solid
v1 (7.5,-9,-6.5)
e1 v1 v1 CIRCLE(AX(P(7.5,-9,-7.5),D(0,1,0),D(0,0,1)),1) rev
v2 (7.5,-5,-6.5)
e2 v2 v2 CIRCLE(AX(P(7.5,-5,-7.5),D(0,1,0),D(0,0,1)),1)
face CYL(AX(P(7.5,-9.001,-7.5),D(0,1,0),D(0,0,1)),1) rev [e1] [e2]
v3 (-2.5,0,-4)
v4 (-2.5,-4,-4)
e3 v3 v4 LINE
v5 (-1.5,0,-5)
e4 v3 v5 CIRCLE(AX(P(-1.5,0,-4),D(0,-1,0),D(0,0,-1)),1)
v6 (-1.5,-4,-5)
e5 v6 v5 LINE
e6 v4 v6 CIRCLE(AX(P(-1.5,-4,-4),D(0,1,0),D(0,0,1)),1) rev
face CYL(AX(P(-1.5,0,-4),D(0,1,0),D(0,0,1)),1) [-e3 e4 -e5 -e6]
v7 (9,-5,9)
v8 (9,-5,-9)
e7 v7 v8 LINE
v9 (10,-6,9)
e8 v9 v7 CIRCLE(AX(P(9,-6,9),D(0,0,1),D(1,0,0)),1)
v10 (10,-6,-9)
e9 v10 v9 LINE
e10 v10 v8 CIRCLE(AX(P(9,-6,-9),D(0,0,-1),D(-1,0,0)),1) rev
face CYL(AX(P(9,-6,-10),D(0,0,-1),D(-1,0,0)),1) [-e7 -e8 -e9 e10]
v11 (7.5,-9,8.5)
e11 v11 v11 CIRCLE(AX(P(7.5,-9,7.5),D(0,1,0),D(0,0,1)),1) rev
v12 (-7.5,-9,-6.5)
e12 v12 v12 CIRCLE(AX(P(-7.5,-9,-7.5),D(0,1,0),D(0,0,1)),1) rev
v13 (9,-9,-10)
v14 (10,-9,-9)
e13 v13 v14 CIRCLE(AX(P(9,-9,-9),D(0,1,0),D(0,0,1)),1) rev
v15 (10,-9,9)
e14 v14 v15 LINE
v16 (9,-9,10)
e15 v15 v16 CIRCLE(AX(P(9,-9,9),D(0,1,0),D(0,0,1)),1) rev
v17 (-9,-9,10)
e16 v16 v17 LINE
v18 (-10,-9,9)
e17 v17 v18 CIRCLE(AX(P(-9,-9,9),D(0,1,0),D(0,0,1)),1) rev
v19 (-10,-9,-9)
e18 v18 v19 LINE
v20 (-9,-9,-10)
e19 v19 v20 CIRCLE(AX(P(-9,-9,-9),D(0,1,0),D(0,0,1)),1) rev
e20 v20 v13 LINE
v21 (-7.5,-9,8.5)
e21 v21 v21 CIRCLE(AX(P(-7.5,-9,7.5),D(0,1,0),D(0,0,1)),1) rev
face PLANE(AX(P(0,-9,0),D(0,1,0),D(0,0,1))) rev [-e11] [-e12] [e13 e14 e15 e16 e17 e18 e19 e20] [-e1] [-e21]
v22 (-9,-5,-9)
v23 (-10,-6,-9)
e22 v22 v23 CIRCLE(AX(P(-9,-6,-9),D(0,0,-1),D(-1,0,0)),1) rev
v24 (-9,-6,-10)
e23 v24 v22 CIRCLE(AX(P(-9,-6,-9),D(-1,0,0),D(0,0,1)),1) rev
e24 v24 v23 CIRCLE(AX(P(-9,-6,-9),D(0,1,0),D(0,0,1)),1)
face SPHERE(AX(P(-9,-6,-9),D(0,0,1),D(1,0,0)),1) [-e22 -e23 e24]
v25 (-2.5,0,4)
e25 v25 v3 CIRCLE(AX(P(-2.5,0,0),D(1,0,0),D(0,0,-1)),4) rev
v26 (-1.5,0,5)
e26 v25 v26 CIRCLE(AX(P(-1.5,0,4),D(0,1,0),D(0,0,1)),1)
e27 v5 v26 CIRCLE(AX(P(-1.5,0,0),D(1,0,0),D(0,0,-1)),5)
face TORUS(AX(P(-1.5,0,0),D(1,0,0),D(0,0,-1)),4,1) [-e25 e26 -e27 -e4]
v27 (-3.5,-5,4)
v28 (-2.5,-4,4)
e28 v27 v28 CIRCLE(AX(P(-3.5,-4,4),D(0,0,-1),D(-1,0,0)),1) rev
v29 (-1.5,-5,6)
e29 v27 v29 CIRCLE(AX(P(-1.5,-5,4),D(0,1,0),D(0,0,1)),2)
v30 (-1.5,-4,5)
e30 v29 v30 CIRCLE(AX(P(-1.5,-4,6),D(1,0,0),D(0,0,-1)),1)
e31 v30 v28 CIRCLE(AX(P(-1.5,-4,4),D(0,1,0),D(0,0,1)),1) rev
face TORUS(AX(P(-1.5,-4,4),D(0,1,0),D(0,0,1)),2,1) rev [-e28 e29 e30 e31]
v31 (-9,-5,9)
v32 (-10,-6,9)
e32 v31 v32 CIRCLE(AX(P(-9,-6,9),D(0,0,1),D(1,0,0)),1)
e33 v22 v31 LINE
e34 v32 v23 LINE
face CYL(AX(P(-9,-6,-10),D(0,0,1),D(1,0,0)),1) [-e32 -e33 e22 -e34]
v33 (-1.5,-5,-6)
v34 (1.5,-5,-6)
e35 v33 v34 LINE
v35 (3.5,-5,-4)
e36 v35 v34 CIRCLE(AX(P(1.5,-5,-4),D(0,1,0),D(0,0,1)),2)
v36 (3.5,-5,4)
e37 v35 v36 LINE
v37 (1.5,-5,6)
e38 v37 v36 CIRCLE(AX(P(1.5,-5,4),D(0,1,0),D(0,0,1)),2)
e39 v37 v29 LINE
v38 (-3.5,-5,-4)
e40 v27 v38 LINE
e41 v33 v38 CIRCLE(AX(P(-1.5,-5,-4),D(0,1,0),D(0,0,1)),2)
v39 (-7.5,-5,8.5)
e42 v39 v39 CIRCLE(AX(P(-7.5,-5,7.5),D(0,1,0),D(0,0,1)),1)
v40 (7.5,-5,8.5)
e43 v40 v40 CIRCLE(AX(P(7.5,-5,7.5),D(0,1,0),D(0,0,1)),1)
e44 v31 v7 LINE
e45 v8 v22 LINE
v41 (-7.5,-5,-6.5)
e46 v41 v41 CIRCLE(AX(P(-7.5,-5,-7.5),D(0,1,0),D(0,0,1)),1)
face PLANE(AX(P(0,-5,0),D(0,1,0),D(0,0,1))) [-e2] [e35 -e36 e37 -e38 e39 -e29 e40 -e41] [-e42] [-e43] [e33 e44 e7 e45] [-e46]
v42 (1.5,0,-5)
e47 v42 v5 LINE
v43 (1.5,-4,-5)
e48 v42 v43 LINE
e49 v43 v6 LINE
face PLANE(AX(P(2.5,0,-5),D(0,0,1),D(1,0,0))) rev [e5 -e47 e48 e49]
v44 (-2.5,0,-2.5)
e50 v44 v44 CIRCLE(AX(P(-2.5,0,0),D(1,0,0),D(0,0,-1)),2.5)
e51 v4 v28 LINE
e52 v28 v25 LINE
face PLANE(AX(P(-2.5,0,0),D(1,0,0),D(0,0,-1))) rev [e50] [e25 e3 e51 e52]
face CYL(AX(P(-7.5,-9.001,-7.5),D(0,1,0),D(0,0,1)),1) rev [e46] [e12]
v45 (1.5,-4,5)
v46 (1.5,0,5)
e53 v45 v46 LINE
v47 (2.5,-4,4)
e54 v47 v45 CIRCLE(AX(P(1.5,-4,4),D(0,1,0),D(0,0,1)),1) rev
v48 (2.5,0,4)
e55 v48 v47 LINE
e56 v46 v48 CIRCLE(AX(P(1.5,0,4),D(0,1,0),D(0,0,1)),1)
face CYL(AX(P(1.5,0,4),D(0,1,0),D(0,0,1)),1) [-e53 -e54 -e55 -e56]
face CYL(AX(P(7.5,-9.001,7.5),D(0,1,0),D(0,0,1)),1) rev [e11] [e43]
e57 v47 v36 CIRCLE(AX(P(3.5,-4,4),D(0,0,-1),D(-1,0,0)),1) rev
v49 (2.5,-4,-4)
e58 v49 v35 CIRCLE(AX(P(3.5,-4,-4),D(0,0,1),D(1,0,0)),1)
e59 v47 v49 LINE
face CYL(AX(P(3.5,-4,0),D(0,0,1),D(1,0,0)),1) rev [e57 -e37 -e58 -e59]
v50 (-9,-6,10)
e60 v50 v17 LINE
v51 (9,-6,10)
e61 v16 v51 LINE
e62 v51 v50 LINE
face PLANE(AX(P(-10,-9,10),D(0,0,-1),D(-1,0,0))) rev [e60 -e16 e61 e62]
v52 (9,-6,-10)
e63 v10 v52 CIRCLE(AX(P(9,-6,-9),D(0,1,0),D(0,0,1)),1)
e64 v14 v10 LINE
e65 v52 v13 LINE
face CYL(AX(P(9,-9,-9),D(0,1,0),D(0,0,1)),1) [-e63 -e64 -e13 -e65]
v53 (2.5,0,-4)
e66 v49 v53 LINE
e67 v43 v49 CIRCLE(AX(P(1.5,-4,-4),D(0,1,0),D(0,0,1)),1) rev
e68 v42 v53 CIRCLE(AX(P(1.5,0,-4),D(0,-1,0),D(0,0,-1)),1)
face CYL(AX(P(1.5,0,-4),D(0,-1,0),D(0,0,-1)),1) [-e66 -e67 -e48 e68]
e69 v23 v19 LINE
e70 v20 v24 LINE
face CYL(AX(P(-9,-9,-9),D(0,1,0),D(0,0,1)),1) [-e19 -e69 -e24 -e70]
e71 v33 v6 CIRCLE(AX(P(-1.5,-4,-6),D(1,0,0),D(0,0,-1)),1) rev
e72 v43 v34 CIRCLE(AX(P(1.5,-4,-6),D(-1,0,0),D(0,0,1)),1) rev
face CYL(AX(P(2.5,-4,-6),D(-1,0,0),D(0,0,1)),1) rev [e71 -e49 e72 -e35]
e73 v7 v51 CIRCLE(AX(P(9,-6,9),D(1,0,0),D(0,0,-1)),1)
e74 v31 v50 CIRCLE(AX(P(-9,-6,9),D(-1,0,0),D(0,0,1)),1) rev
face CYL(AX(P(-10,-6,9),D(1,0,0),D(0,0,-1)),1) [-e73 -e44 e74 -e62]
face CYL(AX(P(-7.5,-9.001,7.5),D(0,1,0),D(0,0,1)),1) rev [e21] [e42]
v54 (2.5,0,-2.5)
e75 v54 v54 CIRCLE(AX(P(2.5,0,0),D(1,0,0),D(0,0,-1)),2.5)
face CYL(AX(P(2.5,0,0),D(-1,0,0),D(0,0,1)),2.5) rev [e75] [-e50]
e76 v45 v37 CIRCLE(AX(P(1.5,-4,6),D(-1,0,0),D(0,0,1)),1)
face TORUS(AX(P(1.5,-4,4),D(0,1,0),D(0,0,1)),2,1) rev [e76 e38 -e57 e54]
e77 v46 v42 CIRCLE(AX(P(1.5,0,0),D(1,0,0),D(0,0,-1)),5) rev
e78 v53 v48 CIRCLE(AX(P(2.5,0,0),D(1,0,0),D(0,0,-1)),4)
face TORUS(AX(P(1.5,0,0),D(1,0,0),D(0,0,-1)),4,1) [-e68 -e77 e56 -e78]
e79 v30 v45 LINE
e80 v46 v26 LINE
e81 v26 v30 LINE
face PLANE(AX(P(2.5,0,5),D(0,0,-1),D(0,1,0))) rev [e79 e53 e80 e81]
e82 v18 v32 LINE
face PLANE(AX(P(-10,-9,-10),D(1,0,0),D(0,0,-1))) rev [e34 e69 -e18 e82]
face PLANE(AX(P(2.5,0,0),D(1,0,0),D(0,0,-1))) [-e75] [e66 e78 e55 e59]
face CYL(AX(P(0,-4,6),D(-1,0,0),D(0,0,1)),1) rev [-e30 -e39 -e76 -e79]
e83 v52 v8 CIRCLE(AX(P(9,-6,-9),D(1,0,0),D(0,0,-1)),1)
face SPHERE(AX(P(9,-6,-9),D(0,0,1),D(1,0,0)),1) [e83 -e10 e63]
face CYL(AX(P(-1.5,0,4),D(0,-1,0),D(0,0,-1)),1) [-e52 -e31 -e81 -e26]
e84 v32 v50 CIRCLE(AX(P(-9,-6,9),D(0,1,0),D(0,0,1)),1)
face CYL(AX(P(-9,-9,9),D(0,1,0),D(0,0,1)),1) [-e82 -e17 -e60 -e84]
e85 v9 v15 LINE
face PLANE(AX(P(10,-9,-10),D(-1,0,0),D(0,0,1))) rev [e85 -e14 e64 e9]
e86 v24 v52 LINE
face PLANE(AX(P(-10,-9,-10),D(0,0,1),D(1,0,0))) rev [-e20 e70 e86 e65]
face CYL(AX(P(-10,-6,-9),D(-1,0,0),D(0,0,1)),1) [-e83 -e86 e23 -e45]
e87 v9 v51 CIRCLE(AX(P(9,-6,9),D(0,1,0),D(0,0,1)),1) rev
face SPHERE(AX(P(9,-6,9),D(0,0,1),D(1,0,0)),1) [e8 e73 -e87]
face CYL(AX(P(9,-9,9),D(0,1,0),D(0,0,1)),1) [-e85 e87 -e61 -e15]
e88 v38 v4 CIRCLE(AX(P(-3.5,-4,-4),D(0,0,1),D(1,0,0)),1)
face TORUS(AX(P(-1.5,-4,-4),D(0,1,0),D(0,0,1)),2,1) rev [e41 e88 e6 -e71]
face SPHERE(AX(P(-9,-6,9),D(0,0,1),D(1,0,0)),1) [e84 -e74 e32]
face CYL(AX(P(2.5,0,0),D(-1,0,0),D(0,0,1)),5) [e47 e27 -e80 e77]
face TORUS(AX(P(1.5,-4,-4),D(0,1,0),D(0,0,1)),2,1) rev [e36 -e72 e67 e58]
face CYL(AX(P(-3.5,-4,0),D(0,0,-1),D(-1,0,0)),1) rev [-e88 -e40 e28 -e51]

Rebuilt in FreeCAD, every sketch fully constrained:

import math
import FreeCAD as App
import Part
import Sketcher
from FreeCAD import Vector


def edges_at(feature, points):
    """Names of the edges that pass closest to the given points."""
    edges = feature.Shape.Edges
    near = lambda p: min(range(len(edges)), key=lambda i: edges[i].distToShape(Part.Vertex(*p))[0])
    return sorted({f"Edge{near(p) + 1}" for p in points})


def add_polygon(sketch, points):
    """Adds a closed chain of lines whose ends are joined by coincident constraints."""
    first, n = sketch.GeometryCount, len(points)
    for a, b in zip(points, points[1:] + points[:1]):
        sketch.addGeometry(Part.LineSegment(App.Vector(*a, 0), App.Vector(*b, 0)), False)
    for i in range(n):
        sketch.addConstraint(Sketcher.Constraint("Coincident", first + i, 2, first + (i + 1) % n, 1))

doc = App.newDocument("Part")
body = doc.addObject("PartDesign::Body", "Body")

# Sketch on YZ plane
sketch1 = doc.addObject("Sketcher::SketchObject", "Sketch")
body.addObject(sketch1)
sketch1.AttachmentSupport = (doc.YZ_Plane, [""])
sketch1.MapMode = "FlatFace"
sketch1.addGeometry([
    Part.LineSegment(Vector(-5, -5, 0), Vector(0, -5, 0)),  # 0
    Part.ArcOfCircle(Part.Circle(Vector(0, 0, 0), Vector(0, 0, 1), 5), math.radians(-90), math.radians(90)),  # 1
    Part.LineSegment(Vector(0, 5, 0), Vector(-5, 5, 0)),  # 2
    Part.LineSegment(Vector(-5, 5, 0), Vector(-5, -5, 0)),  # 3
    Part.Circle(Vector(0, 0, 0), Vector(0, 0, 1), 2.5),  # 4
], False)
sketch1.addConstraint([
    Sketcher.Constraint("Tangent", 0, 2, 1, 1),
    Sketcher.Constraint("Tangent", 1, 2, 2, 1),
    Sketcher.Constraint("Coincident", 2, 2, 3, 1),
    Sketcher.Constraint("Coincident", 3, 2, 0, 1),
    Sketcher.Constraint("Horizontal", 0),
    Sketcher.Constraint("Horizontal", 2),
    Sketcher.Constraint("Vertical", 3),
    Sketcher.Constraint("Coincident", 1, 3, -1, 1),
    Sketcher.Constraint("Coincident", 4, 3, -1, 1),
    Sketcher.Constraint("Diameter", 4, 5.0),
    Sketcher.Constraint("Radius", 1, 5.0),
    Sketcher.Constraint("DistanceX", 0, 1, 0, 2, 5.0),
])
pad1 = doc.addObject("PartDesign::Pad", "Pad")
body.addObject(pad1)
pad1.Profile = sketch1
pad1.Length = 5
pad1.Midplane = True

# Sketch on XZ plane
sketch2 = doc.addObject("Sketcher::SketchObject", "Sketch001")
body.addObject(sketch2)
sketch2.AttachmentSupport = (doc.XZ_Plane, [""])
sketch2.MapMode = "FlatFace"
sketch2.AttachmentOffset = App.Placement(Vector(0, 0, 5), App.Rotation())
add_polygon(sketch2, [(-10, 10), (-10, -10), (10, -10), (10, 10)])  # lines 0-3
sketch2.addConstraint([
    Sketcher.Constraint("Vertical", 0),
    Sketcher.Constraint("Horizontal", 1),
    Sketcher.Constraint("Vertical", 2),
    Sketcher.Constraint("Horizontal", 3),
    Sketcher.Constraint("Symmetric", 0, 2, 2, 2, -1, 1),
    Sketcher.Constraint("Equal", 3, 0),
    Sketcher.Constraint("DistanceX", 1, 1, 1, 2, 20.0),
])
pad2 = doc.addObject("PartDesign::Pad", "Pad001")
body.addObject(pad2)
pad2.Profile = sketch2
pad2.Length = 4

# Sketch on XZ plane
sketch3 = doc.addObject("Sketcher::SketchObject", "Sketch002")
body.addObject(sketch3)
sketch3.AttachmentSupport = (doc.XZ_Plane, [""])
sketch3.MapMode = "FlatFace"
sketch3.AttachmentOffset = App.Placement(Vector(0, 0, 5), App.Rotation())
sketch3.addGeometry(Part.Circle(Vector(7.5, 7.5, 0), Vector(0, 0, 1), 1), False)
sketch3.addConstraint([
    Sketcher.Constraint("Diameter", 0, 2.0),
    Sketcher.Constraint("DistanceX", -1, 1, 0, 3, 7.5),
    Sketcher.Constraint("DistanceY", -1, 1, 0, 3, 7.5),
])
pocket1 = doc.addObject("PartDesign::Pocket", "Pocket")
body.addObject(pocket1)
pocket1.Profile = sketch3
pocket1.Type = "UpToFirst"
pocket1.Reversed = True

# Sketch on XZ plane
sketch4 = doc.addObject("Sketcher::SketchObject", "Sketch003")
body.addObject(sketch4)
sketch4.AttachmentSupport = (doc.XZ_Plane, [""])
sketch4.MapMode = "FlatFace"
sketch4.AttachmentOffset = App.Placement(Vector(0, 0, 5), App.Rotation())
sketch4.addGeometry(Part.Circle(Vector(7.5, -7.5, 0), Vector(0, 0, 1), 1), False)
sketch4.addConstraint([
    Sketcher.Constraint("Diameter", 0, 2.0),
    Sketcher.Constraint("DistanceX", -1, 1, 0, 3, 7.5),
    Sketcher.Constraint("DistanceY", 0, 3, -1, 1, 7.5),
])
pocket2 = doc.addObject("PartDesign::Pocket", "Pocket001")
body.addObject(pocket2)
pocket2.Profile = sketch4
pocket2.Type = "UpToFirst"
pocket2.Reversed = True

# Sketch on XZ plane
sketch5 = doc.addObject("Sketcher::SketchObject", "Sketch004")
body.addObject(sketch5)
sketch5.AttachmentSupport = (doc.XZ_Plane, [""])
sketch5.MapMode = "FlatFace"
sketch5.AttachmentOffset = App.Placement(Vector(0, 0, 5), App.Rotation())
sketch5.addGeometry(Part.Circle(Vector(-7.5, -7.5, 0), Vector(0, 0, 1), 1), False)
sketch5.addConstraint([
    Sketcher.Constraint("Diameter", 0, 2.0),
    Sketcher.Constraint("DistanceX", 0, 3, -1, 1, 7.5),
    Sketcher.Constraint("DistanceY", 0, 3, -1, 1, 7.5),
])
pocket3 = doc.addObject("PartDesign::Pocket", "Pocket002")
body.addObject(pocket3)
pocket3.Profile = sketch5
pocket3.Type = "UpToFirst"
pocket3.Reversed = True

# Sketch on XZ plane
sketch6 = doc.addObject("Sketcher::SketchObject", "Sketch005")
body.addObject(sketch6)
sketch6.AttachmentSupport = (doc.XZ_Plane, [""])
sketch6.MapMode = "FlatFace"
sketch6.AttachmentOffset = App.Placement(Vector(0, 0, 5), App.Rotation())
sketch6.addGeometry(Part.Circle(Vector(-7.5, 7.5, 0), Vector(0, 0, 1), 1), False)
sketch6.addConstraint([
    Sketcher.Constraint("Diameter", 0, 2.0),
    Sketcher.Constraint("DistanceX", 0, 3, -1, 1, 7.5),
    Sketcher.Constraint("DistanceY", -1, 1, 0, 3, 7.5),
])
pocket4 = doc.addObject("PartDesign::Pocket", "Pocket003")
body.addObject(pocket4)
pocket4.Profile = sketch6
pocket4.Type = "UpToFirst"
pocket4.Reversed = True
doc.recompute()

fillet = doc.addObject("PartDesign::Fillet", "Fillet")
body.addObject(fillet)
fillet.Base = (pocket4, edges_at(pocket4, [
    (2.5, -5, 0),
    (2.5, -2.5, -5),
    (-10, -5, 0),
    (-10, -7, 10),
    (0, -5, -10),
    (-10, -7, -10),
    (10, -5, 0),
    (10, -7, -10),
    (0, -5, 10),
    (10, -7, 10),
    (2.5, 5, 0),
    (-2.5, -2.5, -5),
    (-2.5, -5, 0),
    (-2.5, -2.5, 5),
    (-2.5, 5, 0),
    (0, -5, -5),
    (0, -5, 5),
    (2.5, -2.5, 5),
]))
fillet.Radius = 1

doc.recompute()
